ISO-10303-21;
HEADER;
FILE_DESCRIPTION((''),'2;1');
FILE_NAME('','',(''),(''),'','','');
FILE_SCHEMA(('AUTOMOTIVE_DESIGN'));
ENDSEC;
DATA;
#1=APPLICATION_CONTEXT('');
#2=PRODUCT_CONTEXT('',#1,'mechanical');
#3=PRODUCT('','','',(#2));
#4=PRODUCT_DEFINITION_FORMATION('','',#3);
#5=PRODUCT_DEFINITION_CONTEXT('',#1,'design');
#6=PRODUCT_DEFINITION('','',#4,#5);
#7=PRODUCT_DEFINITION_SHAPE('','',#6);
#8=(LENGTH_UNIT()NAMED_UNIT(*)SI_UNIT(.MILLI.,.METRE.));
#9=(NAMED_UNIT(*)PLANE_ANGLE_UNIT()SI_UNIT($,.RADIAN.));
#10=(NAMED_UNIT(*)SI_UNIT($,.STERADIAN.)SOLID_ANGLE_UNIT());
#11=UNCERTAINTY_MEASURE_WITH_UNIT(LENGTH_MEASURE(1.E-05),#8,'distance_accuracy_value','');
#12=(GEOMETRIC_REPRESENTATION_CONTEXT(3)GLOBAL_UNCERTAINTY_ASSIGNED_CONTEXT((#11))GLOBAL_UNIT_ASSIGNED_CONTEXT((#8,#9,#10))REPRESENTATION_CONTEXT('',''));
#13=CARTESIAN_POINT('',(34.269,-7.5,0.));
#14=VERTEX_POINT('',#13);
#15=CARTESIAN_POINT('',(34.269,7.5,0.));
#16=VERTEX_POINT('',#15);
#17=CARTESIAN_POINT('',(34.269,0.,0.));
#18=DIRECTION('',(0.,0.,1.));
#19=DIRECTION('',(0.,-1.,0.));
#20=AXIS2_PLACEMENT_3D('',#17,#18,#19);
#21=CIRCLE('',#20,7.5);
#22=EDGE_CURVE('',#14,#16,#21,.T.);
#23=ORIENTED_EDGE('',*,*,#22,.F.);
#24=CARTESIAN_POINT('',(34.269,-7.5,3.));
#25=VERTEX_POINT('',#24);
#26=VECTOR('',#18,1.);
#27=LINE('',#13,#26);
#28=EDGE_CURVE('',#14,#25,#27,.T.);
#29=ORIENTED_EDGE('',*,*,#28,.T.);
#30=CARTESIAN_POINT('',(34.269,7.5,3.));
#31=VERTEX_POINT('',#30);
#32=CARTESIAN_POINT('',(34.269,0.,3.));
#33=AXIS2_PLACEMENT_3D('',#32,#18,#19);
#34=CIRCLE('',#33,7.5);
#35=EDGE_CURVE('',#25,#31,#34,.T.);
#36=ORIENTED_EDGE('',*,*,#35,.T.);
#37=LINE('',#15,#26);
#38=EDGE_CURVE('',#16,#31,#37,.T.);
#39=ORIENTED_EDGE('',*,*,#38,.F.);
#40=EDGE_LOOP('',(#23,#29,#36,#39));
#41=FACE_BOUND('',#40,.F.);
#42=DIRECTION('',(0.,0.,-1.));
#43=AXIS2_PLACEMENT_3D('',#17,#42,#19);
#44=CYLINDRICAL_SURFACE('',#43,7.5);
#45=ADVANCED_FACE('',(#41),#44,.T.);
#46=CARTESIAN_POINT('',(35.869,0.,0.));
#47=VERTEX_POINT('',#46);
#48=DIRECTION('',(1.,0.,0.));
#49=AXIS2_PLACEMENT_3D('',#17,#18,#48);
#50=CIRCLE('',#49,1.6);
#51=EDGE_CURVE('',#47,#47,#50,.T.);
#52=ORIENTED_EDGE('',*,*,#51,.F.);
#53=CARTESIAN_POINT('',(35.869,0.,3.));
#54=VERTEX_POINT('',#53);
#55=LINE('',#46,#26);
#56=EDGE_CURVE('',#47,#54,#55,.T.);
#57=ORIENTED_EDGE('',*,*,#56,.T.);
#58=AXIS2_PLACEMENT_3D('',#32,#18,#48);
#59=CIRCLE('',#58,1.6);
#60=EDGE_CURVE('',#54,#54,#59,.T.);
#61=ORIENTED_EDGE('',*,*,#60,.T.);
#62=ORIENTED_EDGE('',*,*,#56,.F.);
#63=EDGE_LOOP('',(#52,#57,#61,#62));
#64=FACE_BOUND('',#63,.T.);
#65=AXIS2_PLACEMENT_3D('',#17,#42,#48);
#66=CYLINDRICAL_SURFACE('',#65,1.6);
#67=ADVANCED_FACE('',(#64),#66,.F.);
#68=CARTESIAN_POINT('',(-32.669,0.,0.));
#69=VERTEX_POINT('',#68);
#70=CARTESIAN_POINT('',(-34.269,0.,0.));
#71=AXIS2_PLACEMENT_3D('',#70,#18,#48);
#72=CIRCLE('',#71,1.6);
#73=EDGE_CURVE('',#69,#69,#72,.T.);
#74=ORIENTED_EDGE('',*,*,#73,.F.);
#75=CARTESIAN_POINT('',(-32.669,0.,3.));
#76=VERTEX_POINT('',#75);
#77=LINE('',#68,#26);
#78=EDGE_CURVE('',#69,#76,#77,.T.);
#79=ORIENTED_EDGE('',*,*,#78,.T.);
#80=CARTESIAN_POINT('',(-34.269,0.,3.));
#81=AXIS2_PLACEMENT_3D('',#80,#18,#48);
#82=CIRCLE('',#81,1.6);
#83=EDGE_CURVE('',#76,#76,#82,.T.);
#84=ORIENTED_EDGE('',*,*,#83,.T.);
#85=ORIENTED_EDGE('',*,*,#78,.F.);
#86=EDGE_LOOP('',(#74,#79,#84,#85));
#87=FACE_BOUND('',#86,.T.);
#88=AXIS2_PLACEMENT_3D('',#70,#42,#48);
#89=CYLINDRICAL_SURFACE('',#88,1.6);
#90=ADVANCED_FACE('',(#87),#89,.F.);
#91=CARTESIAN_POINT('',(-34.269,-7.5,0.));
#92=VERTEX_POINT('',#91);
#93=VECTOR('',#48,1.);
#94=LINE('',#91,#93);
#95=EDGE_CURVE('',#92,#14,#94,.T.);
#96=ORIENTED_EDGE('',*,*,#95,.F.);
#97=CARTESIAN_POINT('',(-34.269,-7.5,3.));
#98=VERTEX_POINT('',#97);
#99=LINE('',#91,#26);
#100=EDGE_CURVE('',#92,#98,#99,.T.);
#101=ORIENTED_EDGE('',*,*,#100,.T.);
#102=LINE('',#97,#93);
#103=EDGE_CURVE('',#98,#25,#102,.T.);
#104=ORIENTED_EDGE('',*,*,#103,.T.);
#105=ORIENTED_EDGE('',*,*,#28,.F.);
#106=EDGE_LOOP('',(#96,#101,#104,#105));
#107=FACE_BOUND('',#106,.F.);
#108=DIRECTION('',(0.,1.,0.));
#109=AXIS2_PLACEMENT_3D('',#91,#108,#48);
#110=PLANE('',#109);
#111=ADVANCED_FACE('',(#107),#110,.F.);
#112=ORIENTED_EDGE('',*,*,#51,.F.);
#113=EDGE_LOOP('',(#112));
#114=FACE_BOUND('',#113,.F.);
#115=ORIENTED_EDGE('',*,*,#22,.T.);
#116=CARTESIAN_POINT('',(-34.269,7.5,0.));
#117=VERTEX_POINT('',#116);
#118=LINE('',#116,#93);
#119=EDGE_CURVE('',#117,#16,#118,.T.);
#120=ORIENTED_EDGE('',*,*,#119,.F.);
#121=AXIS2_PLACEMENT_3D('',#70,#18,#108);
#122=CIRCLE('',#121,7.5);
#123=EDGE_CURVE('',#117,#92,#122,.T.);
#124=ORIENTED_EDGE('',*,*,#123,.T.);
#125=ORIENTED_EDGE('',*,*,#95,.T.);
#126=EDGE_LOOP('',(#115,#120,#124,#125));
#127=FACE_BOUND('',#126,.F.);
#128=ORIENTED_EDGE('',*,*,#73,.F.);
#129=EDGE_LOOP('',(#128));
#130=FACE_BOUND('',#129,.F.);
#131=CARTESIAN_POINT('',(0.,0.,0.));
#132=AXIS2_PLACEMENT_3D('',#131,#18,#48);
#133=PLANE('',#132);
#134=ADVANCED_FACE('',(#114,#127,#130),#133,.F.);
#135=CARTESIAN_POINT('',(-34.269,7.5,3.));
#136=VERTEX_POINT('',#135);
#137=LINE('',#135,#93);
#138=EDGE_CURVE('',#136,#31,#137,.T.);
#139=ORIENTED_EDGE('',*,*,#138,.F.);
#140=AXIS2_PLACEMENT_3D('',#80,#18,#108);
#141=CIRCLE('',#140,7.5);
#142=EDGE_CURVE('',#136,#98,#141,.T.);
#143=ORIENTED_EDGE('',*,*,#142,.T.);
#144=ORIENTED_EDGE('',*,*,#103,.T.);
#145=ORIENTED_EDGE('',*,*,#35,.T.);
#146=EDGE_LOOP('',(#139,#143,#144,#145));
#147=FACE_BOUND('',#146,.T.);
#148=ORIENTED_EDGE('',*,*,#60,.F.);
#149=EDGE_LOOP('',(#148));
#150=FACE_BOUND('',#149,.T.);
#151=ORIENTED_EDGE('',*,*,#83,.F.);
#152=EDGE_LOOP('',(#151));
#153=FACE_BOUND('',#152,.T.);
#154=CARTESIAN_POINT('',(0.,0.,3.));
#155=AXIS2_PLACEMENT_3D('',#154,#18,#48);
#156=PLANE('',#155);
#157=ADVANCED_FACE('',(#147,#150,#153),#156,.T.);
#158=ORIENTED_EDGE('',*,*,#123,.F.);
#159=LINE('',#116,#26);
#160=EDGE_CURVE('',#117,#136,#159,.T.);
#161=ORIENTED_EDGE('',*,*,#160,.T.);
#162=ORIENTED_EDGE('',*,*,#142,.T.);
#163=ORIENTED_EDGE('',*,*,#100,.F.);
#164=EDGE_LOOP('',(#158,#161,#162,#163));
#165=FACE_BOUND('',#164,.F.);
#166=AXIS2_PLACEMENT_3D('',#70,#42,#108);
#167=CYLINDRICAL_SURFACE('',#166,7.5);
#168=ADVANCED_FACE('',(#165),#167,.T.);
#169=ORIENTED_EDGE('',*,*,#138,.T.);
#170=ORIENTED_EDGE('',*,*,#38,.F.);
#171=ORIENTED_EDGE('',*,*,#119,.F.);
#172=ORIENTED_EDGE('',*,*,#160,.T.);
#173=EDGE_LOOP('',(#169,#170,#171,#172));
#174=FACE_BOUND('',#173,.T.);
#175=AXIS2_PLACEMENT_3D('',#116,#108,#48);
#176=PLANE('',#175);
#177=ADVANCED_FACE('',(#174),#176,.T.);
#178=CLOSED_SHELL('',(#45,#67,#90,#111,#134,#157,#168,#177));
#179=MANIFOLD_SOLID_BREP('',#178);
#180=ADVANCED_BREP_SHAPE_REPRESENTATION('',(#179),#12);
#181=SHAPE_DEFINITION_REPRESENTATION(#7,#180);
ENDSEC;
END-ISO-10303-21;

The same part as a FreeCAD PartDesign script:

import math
import FreeCAD as App
import Part
import Sketcher

V = App.Vector

doc = App.newDocument("Part")
body = doc.addObject("PartDesign::Body", "Body")

# Sketch on XY plane
sketch1 = body.newObject("Sketcher::SketchObject", "Sketch")
sketch1.AttachmentSupport = (doc.getObject("XY_Plane"), [""])
sketch1.MapMode = "FlatFace"
sketch1.addGeometry([
    Part.LineSegment(V(34.3, 7.5, 0), V(-34.3, 7.5, 0)),  # 0
    Part.ArcOfCircle(Part.Circle(V(-34.3, 0, 0), V(0, 0, 1), 7.5), math.radians(90), math.radians(270)),  # 1
    Part.LineSegment(V(-34.3, -7.5, 0), V(34.3, -7.5, 0)),  # 2
    Part.ArcOfCircle(Part.Circle(V(34.3, 0, 0), V(0, 0, 1), 7.5), math.radians(-90), math.radians(90)),  # 3
    Part.Circle(V(-34.3, 0, 0), V(0, 0, 1), 1.6),  # 4
    Part.Circle(V(34.3, 0, 0), V(0, 0, 1), 1.6),  # 5
], False)
sketch1.addConstraint([
    Sketcher.Constraint("Tangent", 0, 2, 1, 1),
    Sketcher.Constraint("Tangent", 1, 2, 2, 1),
    Sketcher.Constraint("Tangent", 2, 2, 3, 1),
    Sketcher.Constraint("Tangent", 3, 2, 0, 1),
    Sketcher.Constraint("Horizontal", 0),
    Sketcher.Constraint("Horizontal", 2),
    Sketcher.Constraint("Coincident", 4, 3, 1, 3),
    Sketcher.Constraint("Coincident", 5, 3, 3, 3),
    Sketcher.Constraint("Equal", 4, 5),
    Sketcher.Constraint("Symmetric", 1, 3, 3, 3, -1, 1),
    Sketcher.Constraint("Diameter", 4, 3.2),
    Sketcher.Constraint("Radius", 1, 7.5),
    Sketcher.Constraint("DistanceX", 0, 2, 0, 1, 68.538),
])
pad1 = body.newObject("PartDesign::Pad", "Pad")
pad1.Profile = sketch1
pad1.Length = 3

doc.recompute()
